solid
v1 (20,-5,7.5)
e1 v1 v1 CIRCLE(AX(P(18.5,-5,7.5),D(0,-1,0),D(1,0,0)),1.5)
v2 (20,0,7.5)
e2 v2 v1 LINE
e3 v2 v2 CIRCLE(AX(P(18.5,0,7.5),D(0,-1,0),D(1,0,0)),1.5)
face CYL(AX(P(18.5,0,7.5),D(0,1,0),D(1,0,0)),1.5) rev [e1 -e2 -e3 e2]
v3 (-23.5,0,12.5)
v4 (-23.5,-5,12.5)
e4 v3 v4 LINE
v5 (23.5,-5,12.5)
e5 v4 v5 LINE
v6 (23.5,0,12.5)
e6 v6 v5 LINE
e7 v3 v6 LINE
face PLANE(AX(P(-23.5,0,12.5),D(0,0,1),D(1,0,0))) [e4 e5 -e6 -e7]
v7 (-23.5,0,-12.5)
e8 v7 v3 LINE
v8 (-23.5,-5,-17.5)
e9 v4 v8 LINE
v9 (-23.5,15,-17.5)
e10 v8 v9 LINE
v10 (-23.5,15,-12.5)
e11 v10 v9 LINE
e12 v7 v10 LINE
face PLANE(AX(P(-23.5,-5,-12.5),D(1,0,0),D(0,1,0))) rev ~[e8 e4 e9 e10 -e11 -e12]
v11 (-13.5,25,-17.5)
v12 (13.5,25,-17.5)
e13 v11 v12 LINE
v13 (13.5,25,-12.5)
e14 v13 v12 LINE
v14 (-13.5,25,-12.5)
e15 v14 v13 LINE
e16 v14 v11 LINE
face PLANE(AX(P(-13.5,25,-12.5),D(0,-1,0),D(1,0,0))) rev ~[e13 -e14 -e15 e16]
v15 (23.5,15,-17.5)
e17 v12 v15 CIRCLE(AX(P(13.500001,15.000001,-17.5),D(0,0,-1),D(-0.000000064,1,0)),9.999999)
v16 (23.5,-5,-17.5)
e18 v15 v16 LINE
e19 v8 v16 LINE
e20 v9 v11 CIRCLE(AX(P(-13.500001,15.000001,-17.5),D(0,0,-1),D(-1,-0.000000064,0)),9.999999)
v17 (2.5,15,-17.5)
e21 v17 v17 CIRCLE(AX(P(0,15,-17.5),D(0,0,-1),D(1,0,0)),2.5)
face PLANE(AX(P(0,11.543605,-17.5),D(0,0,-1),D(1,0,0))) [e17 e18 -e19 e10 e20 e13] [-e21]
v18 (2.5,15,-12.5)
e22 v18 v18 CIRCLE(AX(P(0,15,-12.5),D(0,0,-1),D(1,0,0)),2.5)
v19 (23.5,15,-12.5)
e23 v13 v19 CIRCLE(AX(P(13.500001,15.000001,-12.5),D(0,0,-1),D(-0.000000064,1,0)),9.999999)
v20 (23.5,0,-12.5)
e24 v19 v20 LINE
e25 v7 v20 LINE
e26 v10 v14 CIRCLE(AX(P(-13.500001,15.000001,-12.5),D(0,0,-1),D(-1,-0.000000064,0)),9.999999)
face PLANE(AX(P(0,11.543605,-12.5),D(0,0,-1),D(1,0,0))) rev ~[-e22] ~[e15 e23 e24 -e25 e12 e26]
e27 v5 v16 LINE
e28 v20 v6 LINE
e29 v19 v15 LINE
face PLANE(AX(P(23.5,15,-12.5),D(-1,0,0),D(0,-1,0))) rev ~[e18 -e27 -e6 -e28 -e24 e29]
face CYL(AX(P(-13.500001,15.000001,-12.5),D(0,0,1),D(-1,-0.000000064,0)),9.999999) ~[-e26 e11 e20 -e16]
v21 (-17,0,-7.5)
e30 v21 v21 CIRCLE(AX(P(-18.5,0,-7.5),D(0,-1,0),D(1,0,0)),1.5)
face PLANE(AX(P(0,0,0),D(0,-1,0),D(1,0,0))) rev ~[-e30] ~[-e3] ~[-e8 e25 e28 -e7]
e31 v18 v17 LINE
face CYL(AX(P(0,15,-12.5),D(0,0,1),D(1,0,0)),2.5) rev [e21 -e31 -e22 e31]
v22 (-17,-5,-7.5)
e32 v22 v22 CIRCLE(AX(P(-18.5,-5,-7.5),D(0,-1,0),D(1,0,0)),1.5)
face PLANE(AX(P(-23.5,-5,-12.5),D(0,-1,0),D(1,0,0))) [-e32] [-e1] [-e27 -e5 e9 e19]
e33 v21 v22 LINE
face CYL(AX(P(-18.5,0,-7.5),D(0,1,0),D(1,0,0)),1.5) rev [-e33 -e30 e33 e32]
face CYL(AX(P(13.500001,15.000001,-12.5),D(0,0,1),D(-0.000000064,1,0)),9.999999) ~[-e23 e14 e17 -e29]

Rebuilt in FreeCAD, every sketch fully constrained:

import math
import FreeCAD as App
import Part
import Sketcher

V = App.Vector
Q = App.Units.Quantity

doc = App.newDocument("Part")
body = doc.addObject("PartDesign::Body", "Body")

sketch1 = doc.addObject("Sketcher::SketchObject", "Sketch")
body.addObject(sketch1)
sketch1.AttachmentSupport = (doc.XZ_Plane, [""])
sketch1.MapMode = "FlatFace"
sketch1.addGeometry(Part.LineSegment(V(-23.5, 12.5, 0), V(-23.5, -12.5, 0)), False)
sketch1.addGeometry(Part.LineSegment(V(-23.5, -12.5, 0), V(23.5, -12.5, 0)), False)
sketch1.addGeometry(Part.LineSegment(V(23.5, -12.5, 0), V(23.5, 12.5, 0)), False)
sketch1.addGeometry(Part.LineSegment(V(23.5, 12.5, 0), V(-23.5, 12.5, 0)), False)
sketch1.addGeometry(Part.Circle(V(-18.5, -7.5, 0), V(0, 0, 1), 1.5), False)
sketch1.addGeometry(Part.Circle(V(18.5, 7.5, 0), V(0, 0, 1), 1.5), False)
sketch1.addConstraint(Sketcher.Constraint("Coincident", 0, 2, 1, 1))
sketch1.addConstraint(Sketcher.Constraint("Coincident", 1, 2, 2, 1))
sketch1.addConstraint(Sketcher.Constraint("Coincident", 2, 2, 3, 1))
sketch1.addConstraint(Sketcher.Constraint("Coincident", 3, 2, 0, 1))
sketch1.addConstraint(Sketcher.Constraint("Vertical", 0))
sketch1.addConstraint(Sketcher.Constraint("Horizontal", 1))
sketch1.addConstraint(Sketcher.Constraint("Vertical", 2))
sketch1.addConstraint(Sketcher.Constraint("Horizontal", 3))
sketch1.addConstraint(Sketcher.Constraint("Equal", 4, 5))
sketch1.addConstraint(Sketcher.Constraint("Symmetric", 4, 3, 5, 3, -1, 1))
sketch1.addConstraint(Sketcher.Constraint("Symmetric", 0, 2, 2, 2, -1, 1))
sketch1.addConstraint(Sketcher.Constraint("Diameter", 4, Q("3 mm")))
sketch1.addConstraint(Sketcher.Constraint("DistanceX", 1, 1, 1, 2, Q("47 mm")))
sketch1.addConstraint(Sketcher.Constraint("DistanceY", 0, 2, 0, 1, Q("25 mm")))
sketch1.addConstraint(Sketcher.Constraint("DistanceX", 4, 3, 5, 3, Q("37 mm")))
sketch1.addConstraint(Sketcher.Constraint("DistanceY", 4, 3, 5, 3, Q("15 mm")))
pad1 = doc.addObject("PartDesign::Pad", "Pad")
body.addObject(pad1)
pad1.Profile = sketch1
pad1.Length = 5

sketch2 = doc.addObject("Sketcher::SketchObject", "Sketch001")
body.addObject(sketch2)
sketch2.AttachmentSupport = (doc.XY_Plane, [""])
sketch2.MapMode = "FlatFace"
sketch2.AttachmentOffset = App.Placement(V(0, 0, -12.5), App.Rotation())
sketch2.addGeometry(Part.LineSegment(V(23.5, 15, 0), V(23.5, -5, 0)), False)
sketch2.addGeometry(Part.LineSegment(V(23.5, -5, 0), V(-23.5, -5, 0)), False)
sketch2.addGeometry(Part.LineSegment(V(-23.5, -5, 0), V(-23.5, 15, 0)), False)
sketch2.addGeometry(Part.ArcOfCircle(Part.Circle(V(-13.5, 15, 0), V(0, 0, 1), 10), math.radians(90), math.radians(180)), False)
sketch2.addGeometry(Part.LineSegment(V(-13.5, 25, 0), V(13.5, 25, 0)), False)
sketch2.addGeometry(Part.ArcOfCircle(Part.Circle(V(13.5, 15, 0), V(0, 0, 1), 10), math.radians(0), math.radians(90)), False)
sketch2.addGeometry(Part.Circle(V(0, 15, 0), V(0, 0, 1), 2.5), False)
sketch2.addConstraint(Sketcher.Constraint("Coincident", 0, 2, 1, 1))
sketch2.addConstraint(Sketcher.Constraint("Coincident", 1, 2, 2, 1))
sketch2.addConstraint(Sketcher.Constraint("Tangent", 2, 2, 3, 2))
sketch2.addConstraint(Sketcher.Constraint("Tangent", 3, 1, 4, 1))
sketch2.addConstraint(Sketcher.Constraint("Tangent", 4, 2, 5, 2))
sketch2.addConstraint(Sketcher.Constraint("Tangent", 5, 1, 0, 1))
sketch2.addConstraint(Sketcher.Constraint("Vertical", 0))
sketch2.addConstraint(Sketcher.Constraint("Horizontal", 1))
sketch2.addConstraint(Sketcher.Constraint("Vertical", 2))
sketch2.addConstraint(Sketcher.Constraint("Horizontal", 4))
sketch2.addConstraint(Sketcher.Constraint("Equal", 3, 5))
sketch2.addConstraint(Sketcher.Constraint("PointOnObject", 6, 3, -2))
sketch2.addConstraint(Sketcher.Constraint("Horizontal", 5, 3, 6, 3))
sketch2.addConstraint(Sketcher.Constraint("Diameter", 6, Q("5 mm")))
sketch2.addConstraint(Sketcher.Constraint("Radius", 3, Q("9.999999 mm")))
sketch2.addConstraint(Sketcher.Constraint("DistanceX", 1, 2, 1, 1, Q("47 mm")))
sketch2.addConstraint(Sketcher.Constraint("DistanceY", 0, 2, 0, 1, Q("20 mm")))
sketch2.addConstraint(Sketcher.Constraint("DistanceY", -1, 1, 3, 3, Q("15.000001 mm")))
sketch2.addConstraint(Sketcher.Constraint("DistanceX", 3, 3, -1, 1, Q("13.500001 mm")))
pad2 = doc.addObject("PartDesign::Pad", "Pad001")
body.addObject(pad2)
pad2.Profile = sketch2
pad2.Length = 5
pad2.Reversed = True

doc.recompute()
